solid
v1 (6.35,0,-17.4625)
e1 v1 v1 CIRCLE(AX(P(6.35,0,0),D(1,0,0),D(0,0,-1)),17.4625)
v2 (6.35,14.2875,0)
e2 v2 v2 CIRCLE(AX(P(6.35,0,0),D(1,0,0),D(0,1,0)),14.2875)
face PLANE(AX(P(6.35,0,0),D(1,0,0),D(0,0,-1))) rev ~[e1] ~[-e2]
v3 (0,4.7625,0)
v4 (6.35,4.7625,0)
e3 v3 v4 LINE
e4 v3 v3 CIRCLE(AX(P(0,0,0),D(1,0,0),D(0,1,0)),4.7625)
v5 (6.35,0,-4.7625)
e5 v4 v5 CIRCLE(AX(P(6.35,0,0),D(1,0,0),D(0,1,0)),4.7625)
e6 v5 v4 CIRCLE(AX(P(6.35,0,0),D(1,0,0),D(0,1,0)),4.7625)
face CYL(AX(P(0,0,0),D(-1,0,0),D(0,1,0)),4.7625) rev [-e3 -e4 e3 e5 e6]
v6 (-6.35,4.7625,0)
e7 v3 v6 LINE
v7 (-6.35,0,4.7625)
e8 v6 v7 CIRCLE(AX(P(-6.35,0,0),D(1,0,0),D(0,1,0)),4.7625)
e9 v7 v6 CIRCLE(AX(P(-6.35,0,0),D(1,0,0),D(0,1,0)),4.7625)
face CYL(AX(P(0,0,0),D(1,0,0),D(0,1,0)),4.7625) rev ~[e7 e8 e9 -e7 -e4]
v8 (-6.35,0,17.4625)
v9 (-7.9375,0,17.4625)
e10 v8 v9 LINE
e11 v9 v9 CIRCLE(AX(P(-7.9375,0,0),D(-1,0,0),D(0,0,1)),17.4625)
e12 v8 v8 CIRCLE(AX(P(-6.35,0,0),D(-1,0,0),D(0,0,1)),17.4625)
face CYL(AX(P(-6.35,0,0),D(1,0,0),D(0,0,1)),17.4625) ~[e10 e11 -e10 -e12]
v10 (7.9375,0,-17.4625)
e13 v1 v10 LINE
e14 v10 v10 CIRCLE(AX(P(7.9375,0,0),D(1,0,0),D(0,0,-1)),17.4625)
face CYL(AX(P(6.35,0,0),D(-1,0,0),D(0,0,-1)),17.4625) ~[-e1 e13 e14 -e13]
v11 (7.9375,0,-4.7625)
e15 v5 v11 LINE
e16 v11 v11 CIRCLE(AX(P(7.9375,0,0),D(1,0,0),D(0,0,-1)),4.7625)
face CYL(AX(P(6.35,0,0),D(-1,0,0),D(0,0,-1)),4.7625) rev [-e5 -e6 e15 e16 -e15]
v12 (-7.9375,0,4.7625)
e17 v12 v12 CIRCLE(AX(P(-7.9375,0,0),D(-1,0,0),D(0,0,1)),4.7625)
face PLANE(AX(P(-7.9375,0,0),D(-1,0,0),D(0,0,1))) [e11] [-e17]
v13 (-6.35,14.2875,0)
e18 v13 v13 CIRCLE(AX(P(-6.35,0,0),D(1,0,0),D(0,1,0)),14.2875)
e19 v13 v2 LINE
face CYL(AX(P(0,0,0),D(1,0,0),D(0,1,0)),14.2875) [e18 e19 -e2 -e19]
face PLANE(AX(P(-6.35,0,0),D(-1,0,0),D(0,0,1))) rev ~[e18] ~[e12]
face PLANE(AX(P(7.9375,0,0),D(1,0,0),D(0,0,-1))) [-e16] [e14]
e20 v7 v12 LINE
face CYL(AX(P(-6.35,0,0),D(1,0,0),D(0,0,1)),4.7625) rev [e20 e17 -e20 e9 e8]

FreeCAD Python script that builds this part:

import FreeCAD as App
import Part
import Sketcher
from FreeCAD import Vector
Q = App.Units.Quantity

doc = App.newDocument("Part")
body = doc.addObject("PartDesign::Body", "Body")

sketch1 = body.newObject("Sketcher::SketchObject", "Sketch")
sketch1.AttachmentSupport = (doc.getObject("YZ_Plane"), [""])
sketch1.MapMode = "FlatFace"
sketch1.addGeometry(Part.Circle(Vector(0, 0, 0), Vector(0, 0, 1), 14.3), False)
sketch1.addGeometry(Part.Circle(Vector(0, 0, 0), Vector(0, 0, 1), 4.8), False)
sketch1.addConstraint(Sketcher.Constraint("Coincident", 0, 3, -1, 1))
sketch1.addConstraint(Sketcher.Constraint("Coincident", 1, 3, -1, 1))
sketch1.addConstraint(Sketcher.Constraint("Diameter", 0, Q("1.125 in")))
sketch1.addConstraint(Sketcher.Constraint("Diameter", 1, Q("0.375 in")))
pad1 = body.newObject("PartDesign::Pad", "Pad")
pad1.Profile = sketch1
pad1.Length = Q("0.5 in")
pad1.Midplane = True

sketch2 = body.newObject("Sketcher::SketchObject", "Sketch001")
sketch2.AttachmentSupport = (doc.getObject("YZ_Plane"), [""])
sketch2.MapMode = "FlatFace"
sketch2.AttachmentOffset = App.Placement(Vector(0, 0, 0.25 * 25.4), App.Rotation())
sketch2.addGeometry(Part.Circle(Vector(0, 0, 0), Vector(0, 0, 1), 17.5), False)
sketch2.addGeometry(Part.Circle(Vector(0, 0, 0), Vector(0, 0, 1), 4.8), False)
sketch2.addConstraint(Sketcher.Constraint("Coincident", 0, 3, -1, 1))
sketch2.addConstraint(Sketcher.Constraint("Coincident", 1, 3, -1, 1))
sketch2.addConstraint(Sketcher.Constraint("Diameter", 0, Q("1.375 in")))
sketch2.addConstraint(Sketcher.Constraint("Diameter", 1, Q("0.375 in")))
pad2 = body.newObject("PartDesign::Pad", "Pad001")
pad2.Profile = sketch2
pad2.Length = Q("0.0625 in")

sketch3 = body.newObject("Sketcher::SketchObject", "Sketch002")
sketch3.AttachmentSupport = (doc.getObject("YZ_Plane"), [""])
sketch3.MapMode = "FlatFace"
sketch3.AttachmentOffset = App.Placement(Vector(0, 0, -0.25 * 25.4), App.Rotation())
sketch3.addGeometry(Part.Circle(Vector(0, 0, 0), Vector(0, 0, 1), 17.5), False)
sketch3.addGeometry(Part.Circle(Vector(0, 0, 0), Vector(0, 0, 1), 4.8), False)
sketch3.addConstraint(Sketcher.Constraint("Coincident", 0, 3, -1, 1))
sketch3.addConstraint(Sketcher.Constraint("Coincident", 1, 3, -1, 1))
sketch3.addConstraint(Sketcher.Constraint("Diameter", 0, Q("1.375 in")))
sketch3.addConstraint(Sketcher.Constraint("Diameter", 1, Q("0.375 in")))
pad3 = body.newObject("PartDesign::Pad", "Pad002")
pad3.Profile = sketch3
pad3.Length = Q("0.0625 in")
pad3.Reversed = True

doc.recompute()
